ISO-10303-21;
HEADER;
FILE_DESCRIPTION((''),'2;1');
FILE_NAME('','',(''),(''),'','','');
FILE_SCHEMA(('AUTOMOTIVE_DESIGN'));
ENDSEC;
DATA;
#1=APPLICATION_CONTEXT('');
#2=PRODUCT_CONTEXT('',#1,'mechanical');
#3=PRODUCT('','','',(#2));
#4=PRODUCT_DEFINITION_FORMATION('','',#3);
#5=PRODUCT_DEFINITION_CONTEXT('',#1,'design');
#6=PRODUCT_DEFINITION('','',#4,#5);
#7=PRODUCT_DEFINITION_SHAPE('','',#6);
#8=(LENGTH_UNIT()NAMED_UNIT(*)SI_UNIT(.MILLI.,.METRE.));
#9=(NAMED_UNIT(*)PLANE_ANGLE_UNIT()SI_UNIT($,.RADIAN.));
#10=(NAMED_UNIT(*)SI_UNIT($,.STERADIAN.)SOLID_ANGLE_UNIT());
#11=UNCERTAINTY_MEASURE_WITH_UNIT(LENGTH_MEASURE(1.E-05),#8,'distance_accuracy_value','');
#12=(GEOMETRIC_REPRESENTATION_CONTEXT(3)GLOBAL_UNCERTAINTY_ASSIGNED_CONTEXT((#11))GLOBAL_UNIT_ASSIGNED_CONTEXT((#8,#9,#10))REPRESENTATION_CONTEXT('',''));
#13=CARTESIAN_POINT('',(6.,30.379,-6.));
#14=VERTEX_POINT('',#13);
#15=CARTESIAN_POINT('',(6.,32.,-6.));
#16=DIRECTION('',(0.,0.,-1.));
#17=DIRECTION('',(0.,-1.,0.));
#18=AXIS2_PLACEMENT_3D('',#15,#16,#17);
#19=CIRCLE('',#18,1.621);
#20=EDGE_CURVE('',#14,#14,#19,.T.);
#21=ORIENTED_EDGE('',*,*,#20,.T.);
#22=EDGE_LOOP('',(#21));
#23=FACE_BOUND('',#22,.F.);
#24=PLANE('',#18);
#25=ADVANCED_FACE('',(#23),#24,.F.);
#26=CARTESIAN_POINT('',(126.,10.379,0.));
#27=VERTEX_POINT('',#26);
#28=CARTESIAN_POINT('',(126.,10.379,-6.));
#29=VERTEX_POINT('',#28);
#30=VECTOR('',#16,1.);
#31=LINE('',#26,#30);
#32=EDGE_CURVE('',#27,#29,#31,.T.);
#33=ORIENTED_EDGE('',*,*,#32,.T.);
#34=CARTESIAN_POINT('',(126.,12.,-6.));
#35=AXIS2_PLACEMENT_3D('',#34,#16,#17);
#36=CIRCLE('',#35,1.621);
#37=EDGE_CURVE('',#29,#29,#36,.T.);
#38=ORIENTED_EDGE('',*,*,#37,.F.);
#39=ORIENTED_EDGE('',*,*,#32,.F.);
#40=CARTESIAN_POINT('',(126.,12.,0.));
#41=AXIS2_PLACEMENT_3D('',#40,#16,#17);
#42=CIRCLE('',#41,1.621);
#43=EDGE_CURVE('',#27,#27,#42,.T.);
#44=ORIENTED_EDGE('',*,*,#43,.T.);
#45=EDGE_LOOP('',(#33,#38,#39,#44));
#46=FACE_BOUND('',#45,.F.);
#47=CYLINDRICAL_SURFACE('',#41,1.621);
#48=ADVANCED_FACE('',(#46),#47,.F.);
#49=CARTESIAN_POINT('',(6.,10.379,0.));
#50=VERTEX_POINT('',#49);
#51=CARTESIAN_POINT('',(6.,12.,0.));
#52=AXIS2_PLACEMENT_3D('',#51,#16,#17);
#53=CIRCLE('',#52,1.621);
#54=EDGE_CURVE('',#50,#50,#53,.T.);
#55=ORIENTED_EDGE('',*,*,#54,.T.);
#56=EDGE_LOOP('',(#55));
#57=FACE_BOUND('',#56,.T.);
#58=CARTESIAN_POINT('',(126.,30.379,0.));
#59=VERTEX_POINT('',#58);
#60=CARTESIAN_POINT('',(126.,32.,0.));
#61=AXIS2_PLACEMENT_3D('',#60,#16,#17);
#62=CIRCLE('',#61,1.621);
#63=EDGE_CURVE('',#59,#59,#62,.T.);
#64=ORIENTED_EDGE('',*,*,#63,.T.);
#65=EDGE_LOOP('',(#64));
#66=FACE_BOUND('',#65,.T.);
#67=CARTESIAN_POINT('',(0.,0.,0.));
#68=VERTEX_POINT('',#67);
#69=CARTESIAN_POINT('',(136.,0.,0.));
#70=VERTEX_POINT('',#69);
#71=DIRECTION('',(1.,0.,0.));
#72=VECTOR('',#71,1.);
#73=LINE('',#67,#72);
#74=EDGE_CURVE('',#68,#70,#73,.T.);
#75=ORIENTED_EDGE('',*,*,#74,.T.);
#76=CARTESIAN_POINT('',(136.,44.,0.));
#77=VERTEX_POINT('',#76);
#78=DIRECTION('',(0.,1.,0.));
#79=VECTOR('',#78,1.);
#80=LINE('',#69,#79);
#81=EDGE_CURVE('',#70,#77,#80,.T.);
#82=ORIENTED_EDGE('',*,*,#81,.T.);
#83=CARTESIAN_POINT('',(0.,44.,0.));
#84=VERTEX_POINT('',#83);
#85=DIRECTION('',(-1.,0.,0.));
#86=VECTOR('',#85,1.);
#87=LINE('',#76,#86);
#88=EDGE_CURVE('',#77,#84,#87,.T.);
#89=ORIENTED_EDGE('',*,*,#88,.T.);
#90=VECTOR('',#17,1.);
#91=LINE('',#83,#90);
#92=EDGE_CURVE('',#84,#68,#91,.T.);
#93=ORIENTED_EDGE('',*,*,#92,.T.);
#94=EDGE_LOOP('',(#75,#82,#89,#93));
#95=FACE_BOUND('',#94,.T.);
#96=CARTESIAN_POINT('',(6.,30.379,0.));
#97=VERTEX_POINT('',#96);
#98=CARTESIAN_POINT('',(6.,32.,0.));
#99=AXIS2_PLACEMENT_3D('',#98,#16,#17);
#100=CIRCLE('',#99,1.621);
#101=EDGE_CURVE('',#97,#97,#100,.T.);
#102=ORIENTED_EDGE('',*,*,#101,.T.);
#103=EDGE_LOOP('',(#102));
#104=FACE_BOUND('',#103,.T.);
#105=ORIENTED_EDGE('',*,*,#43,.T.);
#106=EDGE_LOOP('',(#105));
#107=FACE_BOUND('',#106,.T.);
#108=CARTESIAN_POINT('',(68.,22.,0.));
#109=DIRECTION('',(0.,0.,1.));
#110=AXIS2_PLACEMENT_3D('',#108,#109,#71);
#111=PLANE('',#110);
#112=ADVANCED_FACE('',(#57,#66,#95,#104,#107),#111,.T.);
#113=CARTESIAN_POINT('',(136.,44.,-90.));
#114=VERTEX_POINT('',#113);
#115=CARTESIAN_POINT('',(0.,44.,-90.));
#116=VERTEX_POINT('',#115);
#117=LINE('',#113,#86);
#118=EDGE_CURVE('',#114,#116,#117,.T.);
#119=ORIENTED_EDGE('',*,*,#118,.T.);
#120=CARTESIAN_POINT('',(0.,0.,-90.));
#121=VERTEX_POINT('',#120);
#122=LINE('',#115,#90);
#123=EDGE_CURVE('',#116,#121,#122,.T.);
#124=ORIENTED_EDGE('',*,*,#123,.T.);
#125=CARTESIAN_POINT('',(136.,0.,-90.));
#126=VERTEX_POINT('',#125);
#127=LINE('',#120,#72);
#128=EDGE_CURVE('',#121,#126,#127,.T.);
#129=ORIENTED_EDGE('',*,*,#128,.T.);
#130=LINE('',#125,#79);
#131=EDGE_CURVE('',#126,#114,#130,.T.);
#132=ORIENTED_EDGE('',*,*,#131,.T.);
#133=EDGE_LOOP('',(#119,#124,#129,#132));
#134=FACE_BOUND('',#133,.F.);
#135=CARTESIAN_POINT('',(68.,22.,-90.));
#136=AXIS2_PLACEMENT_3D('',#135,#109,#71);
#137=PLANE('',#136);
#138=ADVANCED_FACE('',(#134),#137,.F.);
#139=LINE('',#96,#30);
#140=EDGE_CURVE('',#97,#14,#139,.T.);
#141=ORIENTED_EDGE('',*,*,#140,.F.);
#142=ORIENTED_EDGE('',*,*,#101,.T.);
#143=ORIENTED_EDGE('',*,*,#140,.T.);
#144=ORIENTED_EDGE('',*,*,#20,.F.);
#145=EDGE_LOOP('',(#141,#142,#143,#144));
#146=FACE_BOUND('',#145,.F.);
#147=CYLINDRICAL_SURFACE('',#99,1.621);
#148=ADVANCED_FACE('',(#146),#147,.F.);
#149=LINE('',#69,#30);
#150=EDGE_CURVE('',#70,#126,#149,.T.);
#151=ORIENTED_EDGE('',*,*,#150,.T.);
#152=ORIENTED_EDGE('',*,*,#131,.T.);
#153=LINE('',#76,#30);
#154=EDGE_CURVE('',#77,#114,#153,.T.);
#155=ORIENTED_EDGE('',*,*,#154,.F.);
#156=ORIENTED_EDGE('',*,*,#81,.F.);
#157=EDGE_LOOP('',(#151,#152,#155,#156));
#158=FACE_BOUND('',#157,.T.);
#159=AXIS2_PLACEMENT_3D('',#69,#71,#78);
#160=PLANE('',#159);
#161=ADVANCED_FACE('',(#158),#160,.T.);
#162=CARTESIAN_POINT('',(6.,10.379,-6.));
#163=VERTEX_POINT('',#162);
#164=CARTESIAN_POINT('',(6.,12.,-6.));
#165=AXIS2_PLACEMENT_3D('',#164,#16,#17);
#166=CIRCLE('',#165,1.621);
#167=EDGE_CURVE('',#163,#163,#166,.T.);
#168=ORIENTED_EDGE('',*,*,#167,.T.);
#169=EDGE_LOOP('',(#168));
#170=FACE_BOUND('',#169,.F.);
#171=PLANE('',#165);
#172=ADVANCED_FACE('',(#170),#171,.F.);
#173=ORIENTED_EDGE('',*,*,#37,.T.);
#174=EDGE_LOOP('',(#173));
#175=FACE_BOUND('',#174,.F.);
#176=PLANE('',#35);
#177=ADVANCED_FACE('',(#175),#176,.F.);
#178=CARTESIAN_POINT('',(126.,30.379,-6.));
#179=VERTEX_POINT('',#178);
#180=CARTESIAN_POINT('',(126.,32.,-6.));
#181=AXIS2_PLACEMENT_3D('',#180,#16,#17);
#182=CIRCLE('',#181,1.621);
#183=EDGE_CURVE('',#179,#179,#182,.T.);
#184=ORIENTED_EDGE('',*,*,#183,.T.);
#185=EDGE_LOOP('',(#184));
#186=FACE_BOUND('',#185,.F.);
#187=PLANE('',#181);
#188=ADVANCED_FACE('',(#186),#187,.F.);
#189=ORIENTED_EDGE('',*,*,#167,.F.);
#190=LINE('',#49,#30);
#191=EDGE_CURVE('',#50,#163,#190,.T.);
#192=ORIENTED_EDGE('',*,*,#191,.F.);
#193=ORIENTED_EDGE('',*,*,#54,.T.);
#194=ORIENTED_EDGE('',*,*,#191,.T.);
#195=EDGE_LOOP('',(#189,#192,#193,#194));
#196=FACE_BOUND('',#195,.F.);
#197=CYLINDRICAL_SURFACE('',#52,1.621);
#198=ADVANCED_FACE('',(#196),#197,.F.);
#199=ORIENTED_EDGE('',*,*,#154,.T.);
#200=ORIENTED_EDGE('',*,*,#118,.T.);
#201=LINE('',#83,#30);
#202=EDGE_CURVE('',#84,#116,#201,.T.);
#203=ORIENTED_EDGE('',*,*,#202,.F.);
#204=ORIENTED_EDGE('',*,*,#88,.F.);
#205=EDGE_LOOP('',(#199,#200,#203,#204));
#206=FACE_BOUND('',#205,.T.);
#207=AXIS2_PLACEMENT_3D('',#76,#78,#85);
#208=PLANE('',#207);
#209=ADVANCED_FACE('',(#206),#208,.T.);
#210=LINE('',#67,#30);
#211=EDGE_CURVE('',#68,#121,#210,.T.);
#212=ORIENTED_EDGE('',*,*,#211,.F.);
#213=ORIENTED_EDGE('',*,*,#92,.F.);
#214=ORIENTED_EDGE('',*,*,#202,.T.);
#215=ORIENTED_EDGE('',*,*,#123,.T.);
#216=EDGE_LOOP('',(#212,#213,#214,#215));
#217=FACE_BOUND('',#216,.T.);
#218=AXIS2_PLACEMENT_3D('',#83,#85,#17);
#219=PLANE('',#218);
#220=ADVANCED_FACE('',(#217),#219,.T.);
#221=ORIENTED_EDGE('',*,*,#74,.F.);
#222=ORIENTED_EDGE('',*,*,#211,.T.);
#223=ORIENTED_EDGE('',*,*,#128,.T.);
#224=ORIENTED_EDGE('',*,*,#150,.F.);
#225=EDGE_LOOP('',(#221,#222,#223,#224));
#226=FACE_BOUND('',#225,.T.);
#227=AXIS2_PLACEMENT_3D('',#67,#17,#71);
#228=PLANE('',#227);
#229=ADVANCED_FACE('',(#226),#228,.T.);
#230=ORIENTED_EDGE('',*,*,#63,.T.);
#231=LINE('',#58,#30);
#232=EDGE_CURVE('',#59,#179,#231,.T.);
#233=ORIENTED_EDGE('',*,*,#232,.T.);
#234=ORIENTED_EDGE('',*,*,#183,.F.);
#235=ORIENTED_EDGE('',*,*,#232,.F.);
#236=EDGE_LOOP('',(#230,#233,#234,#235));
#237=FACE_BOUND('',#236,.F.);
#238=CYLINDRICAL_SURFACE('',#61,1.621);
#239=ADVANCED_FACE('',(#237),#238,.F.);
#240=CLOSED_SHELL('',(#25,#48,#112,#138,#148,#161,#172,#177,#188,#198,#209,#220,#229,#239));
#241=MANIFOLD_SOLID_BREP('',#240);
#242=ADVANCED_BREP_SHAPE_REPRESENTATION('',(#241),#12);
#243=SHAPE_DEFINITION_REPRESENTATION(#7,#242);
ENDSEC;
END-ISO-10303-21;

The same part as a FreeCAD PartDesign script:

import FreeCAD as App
import Part
import Sketcher


def add_polygon(sketch, points):
    """Adds a closed chain of lines whose ends are joined by coincident constraints."""
    first, n = sketch.GeometryCount, len(points)
    for a, b in zip(points, points[1:] + points[:1]):
        sketch.addGeometry(Part.LineSegment(App.Vector(*a, 0), App.Vector(*b, 0)), False)
    for i in range(n):
        sketch.addConstraint(Sketcher.Constraint("Coincident", first + i, 2, first + (i + 1) % n, 1))

doc = App.newDocument("Part")
body = doc.addObject("PartDesign::Body", "Body")

sketch1 = body.newObject("Sketcher::SketchObject", "Sketch")
sketch1.AttachmentSupport = (doc.getObject("XY_Plane"), [""])
sketch1.MapMode = "FlatFace"
add_polygon(sketch1, [(136, 0), (136, 44), (0, 44), (0, 0)])
sketch1.addConstraint(Sketcher.Constraint("Vertical", 0))
sketch1.addConstraint(Sketcher.Constraint("Horizontal", 1))
sketch1.addConstraint(Sketcher.Constraint("Vertical", 2))
sketch1.addConstraint(Sketcher.Constraint("Horizontal", 3))
sketch1.addConstraint(Sketcher.Constraint("Coincident", 2, 2, -1, 1))
sketch1.addConstraint(Sketcher.Constraint("DistanceX", 1, 2, 1, 1, 136.0))
sketch1.addConstraint(Sketcher.Constraint("DistanceY", 0, 1, 0, 2, 44.0))
pad1 = body.newObject("PartDesign::Pad", "Pad")
pad1.Profile = sketch1
pad1.Length = 90
pad1.Reversed = True

sketch2 = body.newObject("Sketcher::SketchObject", "Sketch001")
sketch2.AttachmentSupport = (doc.getObject("XY_Plane"), [""])
sketch2.MapMode = "FlatFace"
sketch2.addGeometry(Part.Circle(App.Vector(126, 32, 0), App.Vector(0, 0, 1), 1.6), False)
sketch2.addConstraint(Sketcher.Constraint("Diameter", 0, 3.242))
sketch2.addConstraint(Sketcher.Constraint("DistanceX", -1, 1, 0, 3, 126.0))
sketch2.addConstraint(Sketcher.Constraint("DistanceY", -1, 1, 0, 3, 32.0))
doc.recompute()
hole = body.newObject("PartDesign::Hole", "Hole")
hole.Profile = sketch2
hole.ThreadType = "None"
hole.Diameter = 3.242
hole.DepthType = "Dimension"
hole.Depth = 6
hole.DrillPoint = "Flat"

sketch3 = body.newObject("Sketcher::SketchObject", "Sketch002")
sketch3.AttachmentSupport = (doc.getObject("XY_Plane"), [""])
sketch3.MapMode = "FlatFace"
sketch3.addGeometry(Part.Circle(App.Vector(126, 12, 0), App.Vector(0, 0, 1), 1.6), False)
sketch3.addConstraint(Sketcher.Constraint("Diameter", 0, 3.242))
sketch3.addConstraint(Sketcher.Constraint("DistanceX", -1, 1, 0, 3, 126.0))
sketch3.addConstraint(Sketcher.Constraint("DistanceY", -1, 1, 0, 3, 12.0))
doc.recompute()
hole2 = body.newObject("PartDesign::Hole", "Hole001")
hole2.Profile = sketch3
hole2.ThreadType = "None"
hole2.Diameter = 3.242
hole2.DepthType = "Dimension"
hole2.Depth = 6
hole2.DrillPoint = "Flat"

sketch4 = body.newObject("Sketcher::SketchObject", "Sketch003")
sketch4.AttachmentSupport = (doc.getObject("XY_Plane"), [""])
sketch4.MapMode = "FlatFace"
sketch4.addGeometry(Part.Circle(App.Vector(6, 12, 0), App.Vector(0, 0, 1), 1.6), False)
sketch4.addConstraint(Sketcher.Constraint("Diameter", 0, 3.242))
sketch4.addConstraint(Sketcher.Constraint("DistanceX", -1, 1, 0, 3, 6.0))
sketch4.addConstraint(Sketcher.Constraint("DistanceY", -1, 1, 0, 3, 12.0))
doc.recompute()
hole3 = body.newObject("PartDesign::Hole", "Hole002")
hole3.Profile = sketch4
hole3.ThreadType = "None"
hole3.Diameter = 3.242
hole3.DepthType = "Dimension"
hole3.Depth = 6
hole3.DrillPoint = "Flat"

sketch5 = body.newObject("Sketcher::SketchObject", "Sketch004")
sketch5.AttachmentSupport = (doc.getObject("XY_Plane"), [""])
sketch5.MapMode = "FlatFace"
sketch5.addGeometry(Part.Circle(App.Vector(6, 32, 0), App.Vector(0, 0, 1), 1.6), False)
sketch5.addConstraint(Sketcher.Constraint("Diameter", 0, 3.242))
sketch5.addConstraint(Sketcher.Constraint("DistanceX", -1, 1, 0, 3, 6.0))
sketch5.addConstraint(Sketcher.Constraint("DistanceY", -1, 1, 0, 3, 32.0))
doc.recompute()
hole4 = body.newObject("PartDesign::Hole", "Hole003")
hole4.Profile = sketch5
hole4.ThreadType = "None"
hole4.Diameter = 3.242
hole4.DepthType = "Dimension"
hole4.Depth = 6
hole4.DrillPoint = "Flat"

doc.recompute()
